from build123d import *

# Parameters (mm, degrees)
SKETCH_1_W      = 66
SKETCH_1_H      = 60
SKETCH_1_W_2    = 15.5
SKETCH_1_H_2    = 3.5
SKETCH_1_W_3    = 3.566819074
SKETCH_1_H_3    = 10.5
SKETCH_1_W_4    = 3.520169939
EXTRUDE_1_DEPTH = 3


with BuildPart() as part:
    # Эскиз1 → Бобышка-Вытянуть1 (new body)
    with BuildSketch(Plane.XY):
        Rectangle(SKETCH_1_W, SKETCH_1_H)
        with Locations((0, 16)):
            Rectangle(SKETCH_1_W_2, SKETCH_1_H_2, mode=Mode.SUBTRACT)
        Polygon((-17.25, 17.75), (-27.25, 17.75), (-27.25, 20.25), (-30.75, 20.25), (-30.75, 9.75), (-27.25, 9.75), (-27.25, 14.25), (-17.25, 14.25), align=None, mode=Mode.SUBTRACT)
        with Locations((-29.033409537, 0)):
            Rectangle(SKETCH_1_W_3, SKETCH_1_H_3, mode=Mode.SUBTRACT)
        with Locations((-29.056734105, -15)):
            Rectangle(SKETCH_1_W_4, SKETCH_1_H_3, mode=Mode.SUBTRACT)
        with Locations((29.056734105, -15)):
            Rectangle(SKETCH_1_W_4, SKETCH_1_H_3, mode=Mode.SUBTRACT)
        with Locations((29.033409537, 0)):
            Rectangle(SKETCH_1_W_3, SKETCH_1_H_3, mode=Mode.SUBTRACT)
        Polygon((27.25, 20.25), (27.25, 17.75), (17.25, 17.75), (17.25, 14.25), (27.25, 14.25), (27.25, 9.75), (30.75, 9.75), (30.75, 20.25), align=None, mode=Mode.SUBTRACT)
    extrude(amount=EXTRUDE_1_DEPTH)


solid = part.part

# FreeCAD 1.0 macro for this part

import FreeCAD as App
import Part
import Sketcher

V = App.Vector


def add_polygon(sketch, points):
    """Adds a closed chain of lines whose ends are joined by coincident constraints."""
    first, n = sketch.GeometryCount, len(points)
    for a, b in zip(points, points[1:] + points[:1]):
        sketch.addGeometry(Part.LineSegment(App.Vector(*a, 0), App.Vector(*b, 0)), False)
    for i in range(n):
        sketch.addConstraint(Sketcher.Constraint("Coincident", first + i, 2, first + (i + 1) % n, 1))

doc = App.newDocument("Part")
body = doc.addObject("PartDesign::Body", "Body")

# Sketch on XY plane
sketch1 = body.newObject("Sketcher::SketchObject", "Sketch")
sketch1.AttachmentSupport = (doc.getObject("XY_Plane"), [""])
sketch1.MapMode = "FlatFace"
add_polygon(sketch1, [(-33, 30), (-33, -30), (33, -30), (33, 30)])  # lines 0-3
add_polygon(sketch1, [(-27.3, -20.2), (-30.8, -20.2), (-30.8, -9.8), (-27.3, -9.8)])  # lines 4-7
add_polygon(sketch1, [(30.8, -20.2), (27.3, -20.2), (27.3, -9.8), (30.8, -9.8)])  # lines 8-11
add_polygon(sketch1, [(-27.2, -5.2), (-30.8, -5.2), (-30.8, 5.2), (-27.2, 5.2)])  # lines 12-15
add_polygon(sketch1, [(-27.2, 17.8), (-17.2, 17.8), (-17.2, 14.2), (-27.2, 14.2), (-27.2, 9.8), (-30.8, 9.8), (-30.8, 20.2), (-27.2, 20.2)])  # lines 16-23
add_polygon(sketch1, [(30.8, -5.2), (27.2, -5.2), (27.2, 5.2), (30.8, 5.2)])  # lines 24-27
add_polygon(sketch1, [(7.8, 14.2), (-7.8, 14.2), (-7.8, 17.8), (7.8, 17.8)])  # lines 28-31
add_polygon(sketch1, [(27.2, 17.8), (27.2, 20.2), (30.8, 20.2), (30.8, 9.8), (27.2, 9.8), (27.2, 14.2), (17.2, 14.2), (17.2, 17.8)])  # lines 32-39
sketch1.addConstraint([
    Sketcher.Constraint("Vertical", 0),
    Sketcher.Constraint("Horizontal", 1),
    Sketcher.Constraint("Vertical", 2),
    Sketcher.Constraint("Horizontal", 3),
    Sketcher.Constraint("Horizontal", 4),
    Sketcher.Constraint("Vertical", 5),
    Sketcher.Constraint("Horizontal", 6),
    Sketcher.Constraint("Vertical", 7),
    Sketcher.Constraint("Horizontal", 8),
    Sketcher.Constraint("Vertical", 9),
    Sketcher.Constraint("Horizontal", 10),
    Sketcher.Constraint("Vertical", 11),
    Sketcher.Constraint("Horizontal", 12),
    Sketcher.Constraint("Vertical", 13),
    Sketcher.Constraint("Horizontal", 14),
    Sketcher.Constraint("Vertical", 15),
    Sketcher.Constraint("Horizontal", 16),
    Sketcher.Constraint("Vertical", 17),
    Sketcher.Constraint("Horizontal", 18),
    Sketcher.Constraint("Vertical", 19),
    Sketcher.Constraint("Horizontal", 20),
    Sketcher.Constraint("Vertical", 21),
    Sketcher.Constraint("Horizontal", 22),
    Sketcher.Constraint("Vertical", 23),
    Sketcher.Constraint("Horizontal", 24),
    Sketcher.Constraint("Vertical", 25),
    Sketcher.Constraint("Horizontal", 26),
    Sketcher.Constraint("Vertical", 27),
    Sketcher.Constraint("Horizontal", 28),
    Sketcher.Constraint("Vertical", 29),
    Sketcher.Constraint("Horizontal", 30),
    Sketcher.Constraint("Vertical", 31),
    Sketcher.Constraint("Vertical", 32),
    Sketcher.Constraint("Horizontal", 33),
    Sketcher.Constraint("Vertical", 34),
    Sketcher.Constraint("Horizontal", 35),
    Sketcher.Constraint("Vertical", 36),
    Sketcher.Constraint("Horizontal", 37),
    Sketcher.Constraint("Vertical", 38),
    Sketcher.Constraint("Horizontal", 39),
    Sketcher.Constraint("Symmetric", 0, 2, 2, 2, -1, 1),
    Sketcher.Constraint("Symmetric", 14, 2, 24, 2, -1, 1),
    Sketcher.Constraint("Symmetric", 12, 2, 26, 2, -1, 1),
    Sketcher.Constraint("Symmetric", 7, 2, 8, 2, -2),
    Sketcher.Constraint("Symmetric", 5, 2, 10, 2, -2),
    Sketcher.Constraint("Symmetric", 22, 2, 32, 2, -2),
    Sketcher.Constraint("Symmetric", 20, 2, 34, 2, -2),
    Sketcher.Constraint("Symmetric", 18, 2, 36, 2, -2),
    Sketcher.Constraint("Symmetric", 16, 2, 38, 2, -2),
    Sketcher.Constraint("Horizontal", 15, 2, 24, 2),
    Sketcher.Constraint("Horizontal", 18, 2, 28, 2),
    Sketcher.Constraint("Horizontal", 23, 2, 29, 2),
    Sketcher.Constraint("Vertical", 5, 2, 12, 2),
    Sketcher.Constraint("Vertical", 15, 2, 18, 2),
    Sketcher.Constraint("Vertical", 19, 2, 22, 2),
    Sketcher.Constraint("Equal", 11, 13),
    Sketcher.Constraint("Equal", 35, 17),
    Sketcher.Constraint("Equal", 15, 21),
    Sketcher.Constraint("DistanceX", 1, 1, 1, 2, 66.0),
    Sketcher.Constraint("DistanceX", 16, 1, 16, 2, 10.0),
    Sketcher.Constraint("DistanceY", 0, 2, 0, 1, 60.0),
    Sketcher.Constraint("DistanceX", 20, 2, 20, 1, 3.5),
    Sketcher.Constraint("DistanceX", 28, 2, 28, 1, 15.5),
    Sketcher.Constraint("DistanceY", 5, 1, 5, 2, 10.5),
    Sketcher.Constraint("DistanceY", 19, 2, 19, 1, 4.5),
    Sketcher.Constraint("DistanceY", 4, 2, 12, 2, 15.0),
    Sketcher.Constraint("DistanceY", 15, 2, 16, 2, 23.0),
    Sketcher.Constraint("DistanceX", 16, 2, 30, 2, 25.0),
    Sketcher.Constraint("DistanceX", 30, 2, 33, 2, 23.0),
    Sketcher.Constraint("DistanceX", 4, 2, 4, 1, 3.52017),
    Sketcher.Constraint("DistanceX", 12, 2, 12, 1, 3.566819),
])
pad1 = body.newObject("PartDesign::Pad", "Pad")
pad1.Profile = sketch1
pad1.Length = 3

doc.recompute()
